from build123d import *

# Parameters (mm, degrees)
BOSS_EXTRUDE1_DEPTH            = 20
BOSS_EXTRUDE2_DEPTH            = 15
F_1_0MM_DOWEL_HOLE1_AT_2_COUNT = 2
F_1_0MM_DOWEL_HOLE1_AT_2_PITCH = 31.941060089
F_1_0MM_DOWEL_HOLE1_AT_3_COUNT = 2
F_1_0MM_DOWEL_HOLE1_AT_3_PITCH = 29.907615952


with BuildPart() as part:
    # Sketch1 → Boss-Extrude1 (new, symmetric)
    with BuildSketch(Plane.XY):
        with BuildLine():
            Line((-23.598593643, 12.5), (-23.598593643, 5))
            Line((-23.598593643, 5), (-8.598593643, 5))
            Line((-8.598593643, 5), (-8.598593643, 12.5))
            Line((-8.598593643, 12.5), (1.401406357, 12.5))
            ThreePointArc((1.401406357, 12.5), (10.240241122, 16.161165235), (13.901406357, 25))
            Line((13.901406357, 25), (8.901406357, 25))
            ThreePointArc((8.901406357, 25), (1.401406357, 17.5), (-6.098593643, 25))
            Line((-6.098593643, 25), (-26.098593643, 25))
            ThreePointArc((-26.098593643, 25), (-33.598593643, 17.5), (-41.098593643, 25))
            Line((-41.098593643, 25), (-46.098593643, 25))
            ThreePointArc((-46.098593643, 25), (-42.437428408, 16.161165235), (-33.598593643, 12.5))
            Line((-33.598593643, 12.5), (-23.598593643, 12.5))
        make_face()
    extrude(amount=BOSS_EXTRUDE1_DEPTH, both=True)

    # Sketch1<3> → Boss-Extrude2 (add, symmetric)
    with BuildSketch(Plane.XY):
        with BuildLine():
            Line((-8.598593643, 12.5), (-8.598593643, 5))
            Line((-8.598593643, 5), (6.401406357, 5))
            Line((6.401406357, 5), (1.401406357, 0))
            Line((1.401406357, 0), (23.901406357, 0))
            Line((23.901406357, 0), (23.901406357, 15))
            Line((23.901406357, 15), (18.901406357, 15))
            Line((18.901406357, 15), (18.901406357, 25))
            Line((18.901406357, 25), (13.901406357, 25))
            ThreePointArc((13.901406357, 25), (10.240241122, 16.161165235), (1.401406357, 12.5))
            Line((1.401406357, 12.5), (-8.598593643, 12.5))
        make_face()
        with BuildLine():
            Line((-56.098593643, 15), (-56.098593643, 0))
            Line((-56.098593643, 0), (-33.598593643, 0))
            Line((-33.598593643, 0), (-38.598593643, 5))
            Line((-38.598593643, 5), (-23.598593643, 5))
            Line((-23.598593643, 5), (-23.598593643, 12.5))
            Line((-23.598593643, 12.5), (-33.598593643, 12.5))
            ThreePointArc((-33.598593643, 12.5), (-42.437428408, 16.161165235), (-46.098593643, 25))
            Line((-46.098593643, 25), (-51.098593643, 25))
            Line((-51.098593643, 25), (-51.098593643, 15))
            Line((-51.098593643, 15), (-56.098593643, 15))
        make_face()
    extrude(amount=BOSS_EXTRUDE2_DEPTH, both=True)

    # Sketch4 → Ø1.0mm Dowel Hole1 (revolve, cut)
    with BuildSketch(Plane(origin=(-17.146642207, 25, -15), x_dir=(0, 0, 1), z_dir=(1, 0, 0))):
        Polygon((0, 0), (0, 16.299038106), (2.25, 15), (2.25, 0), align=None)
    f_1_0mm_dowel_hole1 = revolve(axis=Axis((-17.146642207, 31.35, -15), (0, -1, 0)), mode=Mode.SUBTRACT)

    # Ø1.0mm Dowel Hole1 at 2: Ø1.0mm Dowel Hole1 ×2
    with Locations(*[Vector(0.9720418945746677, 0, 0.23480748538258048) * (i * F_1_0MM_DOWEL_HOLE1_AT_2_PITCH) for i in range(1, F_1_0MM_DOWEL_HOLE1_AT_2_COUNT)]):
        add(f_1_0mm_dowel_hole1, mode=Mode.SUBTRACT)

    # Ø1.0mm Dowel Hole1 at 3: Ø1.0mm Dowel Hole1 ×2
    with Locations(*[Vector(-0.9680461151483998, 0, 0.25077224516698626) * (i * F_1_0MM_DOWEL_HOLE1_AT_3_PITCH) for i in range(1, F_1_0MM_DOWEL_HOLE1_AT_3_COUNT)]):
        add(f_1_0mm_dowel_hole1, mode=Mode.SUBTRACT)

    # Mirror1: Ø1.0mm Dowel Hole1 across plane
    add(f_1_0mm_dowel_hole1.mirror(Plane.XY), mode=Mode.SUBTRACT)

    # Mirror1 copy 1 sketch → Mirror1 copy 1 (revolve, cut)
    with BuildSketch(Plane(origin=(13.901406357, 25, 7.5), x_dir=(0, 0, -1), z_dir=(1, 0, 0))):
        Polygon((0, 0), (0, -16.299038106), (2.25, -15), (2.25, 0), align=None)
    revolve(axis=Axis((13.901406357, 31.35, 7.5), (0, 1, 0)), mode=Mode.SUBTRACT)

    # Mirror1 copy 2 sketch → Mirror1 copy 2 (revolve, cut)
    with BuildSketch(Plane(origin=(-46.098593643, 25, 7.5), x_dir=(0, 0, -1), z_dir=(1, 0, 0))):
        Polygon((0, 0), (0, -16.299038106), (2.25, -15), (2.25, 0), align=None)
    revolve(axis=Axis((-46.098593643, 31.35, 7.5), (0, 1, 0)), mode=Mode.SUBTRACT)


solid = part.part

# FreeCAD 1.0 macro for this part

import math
import FreeCAD as App
import Part
import Sketcher
from FreeCAD import Vector
Q = App.Units.Quantity


def add_polygon(sketch, points):
    """Adds a closed chain of lines whose ends are joined by coincident constraints."""
    first, n = sketch.GeometryCount, len(points)
    for a, b in zip(points, points[1:] + points[:1]):
        sketch.addGeometry(Part.LineSegment(App.Vector(*a, 0), App.Vector(*b, 0)), False)
    for i in range(n):
        sketch.addConstraint(Sketcher.Constraint("Coincident", first + i, 2, first + (i + 1) % n, 1))

doc = App.newDocument("Part")
params = doc.addObject("Spreadsheet::Sheet", "Params")
for row, (alias, value) in enumerate([
    ("sketch1_radius", "12.5 mm"),
    ("sketch1_radius2", "7.5 mm"),
    ("sketch1_width", "15 mm"),
    ("sketch1_width2", "10 mm"),
    ("sketch1_height", "7.5 mm"),
    ("pad1_length", "40 mm"),
    ("sketch2_radius", "12.5 mm"),
    ("sketch2_width", "15 mm"),
    ("sketch2_width2", "5 mm"),
    ("sketch2_width3", "10 mm"),
    ("pad2_length", "30 mm"),
    ("sketch3_width", "15 mm"),
    ("sketch3_height", "2.25 mm"),
    ("groove_angle", "360 deg"),
    ("linearpattern_pitch", "31.94106 mm"),
    ("linearpattern2_pitch", "29.907616 mm"),
    ("sketch4_width", "15 mm"),
    ("sketch4_height", "2.25 mm"),
    ("groove2_angle", "360 deg"),
    ("sketch5_width", "15 mm"),
    ("sketch5_height", "2.25 mm"),
    ("groove3_angle", "360 deg"),
], start=1):
    params.set(f"A{row}", alias)
    params.set(f"B{row}", "=" + value)
    params.setAlias(f"B{row}", alias)

body = doc.addObject("PartDesign::Body", "Body")

sketch1 = body.newObject("Sketcher::SketchObject", "Sketch")
sketch1.AttachmentSupport = (doc.getObject("XY_Plane"), [""])
sketch1.MapMode = "FlatFace"
sketch1.addGeometry([
    Part.LineSegment(Vector(-24, 12, 0), Vector(-24, 5, 0)),
    Part.LineSegment(Vector(-24, 5, 0), Vector(-9, 5, 0)),
    Part.LineSegment(Vector(-9, 5, 0), Vector(-9, 12, 0)),
    Part.LineSegment(Vector(-9, 12, 0), Vector(1, 12, 0)),
    Part.ArcOfCircle(Part.Circle(Vector(1, 25, 0), Vector(0, 0, 1), 12), math.radians(-90), math.radians(0)),
    Part.LineSegment(Vector(14, 25, 0), Vector(9, 25, 0)),
    Part.ArcOfCircle(Part.Circle(Vector(1, 25, 0), Vector(0, 0, 1), 8), math.radians(180), math.radians(360)),
    Part.LineSegment(Vector(-6, 25, 0), Vector(-26, 25, 0)),
    Part.ArcOfCircle(Part.Circle(Vector(-34, 25, 0), Vector(0, 0, 1), 8), math.radians(180), math.radians(360)),
    Part.LineSegment(Vector(-41, 25, 0), Vector(-46, 25, 0)),
    Part.ArcOfCircle(Part.Circle(Vector(-34, 25, 0), Vector(0, 0, 1), 12), math.radians(180), math.radians(270)),
    Part.LineSegment(Vector(-34, 12, 0), Vector(-24, 12, 0)),
], False)
sketch1.addConstraint([
    Sketcher.Constraint("Coincident", 0, 2, 1, 1),
    Sketcher.Constraint("Coincident", 1, 2, 2, 1),
    Sketcher.Constraint("Coincident", 2, 2, 3, 1),
    Sketcher.Constraint("Tangent", 3, 2, 4, 1),
    Sketcher.Constraint("Coincident", 4, 2, 5, 1),
    Sketcher.Constraint("Coincident", 5, 2, 6, 2),
    Sketcher.Constraint("Coincident", 6, 1, 7, 1),
    Sketcher.Constraint("Coincident", 7, 2, 8, 2),
    Sketcher.Constraint("Coincident", 8, 1, 9, 1),
    Sketcher.Constraint("Coincident", 9, 2, 10, 1),
    Sketcher.Constraint("Tangent", 10, 2, 11, 1),
    Sketcher.Constraint("Coincident", 11, 2, 0, 1),
    Sketcher.Constraint("Vertical", 0),
    Sketcher.Constraint("Horizontal", 1),
    Sketcher.Constraint("Vertical", 2),
    Sketcher.Constraint("Horizontal", 3),
    Sketcher.Constraint("Horizontal", 5),
    Sketcher.Constraint("Horizontal", 7),
    Sketcher.Constraint("Horizontal", 9),
    Sketcher.Constraint("Horizontal", 11),
    Sketcher.Constraint("Coincident", 6, 3, 4, 3),
    Sketcher.Constraint("Coincident", 10, 3, 8, 3),
    Sketcher.Constraint("Equal", 6, 8),
    Sketcher.Constraint("Equal", 4, 10),
    Sketcher.Constraint("Horizontal", 6, 3, 8, 3),
    Sketcher.Constraint("Horizontal", 10, 3, 4, 2),
    Sketcher.Constraint("Horizontal", 5, 2, 6, 1),
    Sketcher.Constraint("Horizontal", 7, 2, 8, 1),
    Sketcher.Constraint("Equal", 3, 11),
    Sketcher.Constraint("Radius", 4, Q("12.5 mm")),
    Sketcher.Constraint("Radius", 6, Q("7.5 mm")),
    Sketcher.Constraint("DistanceX", 1, 1, 1, 2, Q("15 mm")),
    Sketcher.Constraint("DistanceX", 3, 1, 3, 2, Q("10 mm")),
    Sketcher.Constraint("DistanceY", 0, 2, 0, 1, Q("7.5 mm")),
    Sketcher.Constraint("DistanceY", -1, 1, 4, 3, Q("25 mm")),
    Sketcher.Constraint("DistanceX", -1, 1, 4, 3, Q("1.401406 mm")),
])
sketch1.setExpression("Constraints[29]", "Params.sketch1_radius")
sketch1.setExpression("Constraints[30]", "Params.sketch1_radius2")
sketch1.setExpression("Constraints[31]", "Params.sketch1_width")
sketch1.setExpression("Constraints[32]", "Params.sketch1_width2")
sketch1.setExpression("Constraints[33]", "Params.sketch1_height")
pad1 = body.newObject("PartDesign::Pad", "Pad")
pad1.Profile = sketch1
pad1.setExpression("Length", "Params.pad1_length")
pad1.Midplane = True

sketch2 = body.newObject("Sketcher::SketchObject", "Sketch001")
sketch2.AttachmentSupport = (doc.getObject("XY_Plane"), [""])
sketch2.MapMode = "FlatFace"
sketch2.addGeometry([
    Part.LineSegment(Vector(-8.6, 12.5, 0), Vector(-8.6, 5, 0)),
    Part.LineSegment(Vector(-8.6, 5, 0), Vector(6.4, 5, 0)),
    Part.LineSegment(Vector(6.4, 5, 0), Vector(1.4, 0, 0)),
    Part.LineSegment(Vector(1.4, 0, 0), Vector(23.9, 0, 0)),
    Part.LineSegment(Vector(23.9, 0, 0), Vector(23.9, 15, 0)),
    Part.LineSegment(Vector(23.9, 15, 0), Vector(18.9, 15, 0)),
    Part.LineSegment(Vector(18.9, 15, 0), Vector(18.9, 25, 0)),
    Part.LineSegment(Vector(18.9, 25, 0), Vector(13.9, 25, 0)),
    Part.ArcOfCircle(Part.Circle(Vector(1.4, 25, 0), Vector(0, 0, 1), 12.5), math.radians(-90), math.radians(0)),
    Part.LineSegment(Vector(1.4, 12.5, 0), Vector(-8.6, 12.5, 0)),
    Part.LineSegment(Vector(-56.1, 15, 0), Vector(-56.1, 0, 0)),
    Part.LineSegment(Vector(-56.1, 0, 0), Vector(-33.6, 0, 0)),
    Part.LineSegment(Vector(-33.6, 0, 0), Vector(-38.6, 5, 0)),
    Part.LineSegment(Vector(-38.6, 5, 0), Vector(-23.6, 5, 0)),
    Part.LineSegment(Vector(-23.6, 5, 0), Vector(-23.6, 12.5, 0)),
    Part.LineSegment(Vector(-23.6, 12.5, 0), Vector(-33.6, 12.5, 0)),
    Part.ArcOfCircle(Part.Circle(Vector(-33.6, 25, 0), Vector(0, 0, 1), 12.5), math.radians(180), math.radians(270)),
    Part.LineSegment(Vector(-46.1, 25, 0), Vector(-51.1, 25, 0)),
    Part.LineSegment(Vector(-51.1, 25, 0), Vector(-51.1, 15, 0)),
    Part.LineSegment(Vector(-51.1, 15, 0), Vector(-56.1, 15, 0)),
], False)
sketch2.addConstraint([
    Sketcher.Constraint("Coincident", 0, 2, 1, 1),
    Sketcher.Constraint("Coincident", 1, 2, 2, 1),
    Sketcher.Constraint("Coincident", 2, 2, 3, 1),
    Sketcher.Constraint("Coincident", 3, 2, 4, 1),
    Sketcher.Constraint("Coincident", 4, 2, 5, 1),
    Sketcher.Constraint("Coincident", 5, 2, 6, 1),
    Sketcher.Constraint("Coincident", 6, 2, 7, 1),
    Sketcher.Constraint("Coincident", 7, 2, 8, 2),
    Sketcher.Constraint("Tangent", 8, 1, 9, 1),
    Sketcher.Constraint("Coincident", 9, 2, 0, 1),
    Sketcher.Constraint("Coincident", 10, 2, 11, 1),
    Sketcher.Constraint("Coincident", 11, 2, 12, 1),
    Sketcher.Constraint("Coincident", 12, 2, 13, 1),
    Sketcher.Constraint("Coincident", 13, 2, 14, 1),
    Sketcher.Constraint("Coincident", 14, 2, 15, 1),
    Sketcher.Constraint("Tangent", 15, 2, 16, 2),
    Sketcher.Constraint("Coincident", 16, 1, 17, 1),
    Sketcher.Constraint("Coincident", 17, 2, 18, 1),
    Sketcher.Constraint("Coincident", 18, 2, 19, 1),
    Sketcher.Constraint("Coincident", 19, 2, 10, 1),
    Sketcher.Constraint("Vertical", 0),
    Sketcher.Constraint("Horizontal", 1),
    Sketcher.Constraint("Horizontal", 3),
    Sketcher.Constraint("Vertical", 4),
    Sketcher.Constraint("Horizontal", 5),
    Sketcher.Constraint("Vertical", 6),
    Sketcher.Constraint("Horizontal", 7),
    Sketcher.Constraint("Horizontal", 9),
    Sketcher.Constraint("Vertical", 10),
    Sketcher.Constraint("Horizontal", 11),
    Sketcher.Constraint("Horizontal", 13),
    Sketcher.Constraint("Vertical", 14),
    Sketcher.Constraint("Horizontal", 15),
    Sketcher.Constraint("Horizontal", 17),
    Sketcher.Constraint("Vertical", 18),
    Sketcher.Constraint("Horizontal", 19),
    Sketcher.Constraint("Equal", 8, 16),
    Sketcher.Constraint("PointOnObject", 2, 2, -1),
    Sketcher.Constraint("PointOnObject", 10, 2, -1),
    Sketcher.Constraint("Perpendicular", 2, 12),
    Sketcher.Constraint("Horizontal", 8, 3, 16, 3),
    Sketcher.Constraint("Horizontal", 16, 3, 6, 2),
    Sketcher.Constraint("Horizontal", 1, 2, 12, 2),
    Sketcher.Constraint("Horizontal", 7, 2, 16, 1),
    Sketcher.Constraint("Horizontal", 5, 2, 18, 2),
    Sketcher.Constraint("Vertical", 8, 3, 2, 2),
    Sketcher.Constraint("Vertical", 16, 3, 11, 2),
    Sketcher.Constraint("Equal", 5, 7),
    Sketcher.Constraint("Equal", 3, 11),
    Sketcher.Constraint("Equal", 1, 13),
    Sketcher.Constraint("Equal", 9, 15),
    Sketcher.Constraint("Equal", 7, 17),
    Sketcher.Constraint("Equal", 13, 4),
    Sketcher.Constraint("Equal", 15, 6),
    Sketcher.Constraint("Radius", 8, Q("12.5 mm")),
    Sketcher.Constraint("DistanceX", 1, 1, 1, 2, Q("15 mm")),
    Sketcher.Constraint("DistanceX", 5, 2, 5, 1, Q("5 mm")),
    Sketcher.Constraint("DistanceX", 9, 2, 9, 1, Q("10 mm")),
    Sketcher.Constraint("DistanceX", 16, 3, 8, 3, Q("35 mm")),
    Sketcher.Constraint("DistanceX", -1, 1, 8, 3, Q("1.401406 mm")),
])
sketch2.setExpression("Constraints[54]", "Params.sketch2_radius")
sketch2.setExpression("Constraints[55]", "Params.sketch2_width")
sketch2.setExpression("Constraints[56]", "Params.sketch2_width2")
sketch2.setExpression("Constraints[57]", "Params.sketch2_width3")
pad2 = body.newObject("PartDesign::Pad", "Pad001")
pad2.Profile = sketch2
pad2.setExpression("Length", "Params.pad2_length")
pad2.Midplane = True

sketch3 = body.newObject("Sketcher::SketchObject", "Sketch002")
sketch3.AttachmentSupport = (doc.getObject("YZ_Plane"), [""])
sketch3.MapMode = "FlatFace"
sketch3.AttachmentOffset = App.Placement(Vector(0, 0, -17.146642), App.Rotation())
add_polygon(sketch3, [(8.7, -15), (25, -15), (25, -12.8), (10, -12.8)])
sketch3.addGeometry(Part.LineSegment(Vector(25, -15, 0), Vector(8.7, -15, 0)), True)
sketch3.addConstraint([
    Sketcher.Constraint("Horizontal", 0),
    Sketcher.Constraint("Vertical", 1),
    Sketcher.Constraint("Horizontal", 2),
    Sketcher.Constraint("Horizontal", 4),
    Sketcher.Constraint("Coincident", 4, 1, 0, 2),
    Sketcher.Constraint("Equal", 0, 4),
    Sketcher.Constraint("DistanceX", 2, 2, 2, 1, Q("15 mm")),
    Sketcher.Constraint("Angle", 3, Q("-120 deg")),
    Sketcher.Constraint("DistanceX", -1, 1, 0, 2, Q("25 mm")),
    Sketcher.Constraint("DistanceY", 0, 2, -1, 1, Q("15 mm")),
    Sketcher.Constraint("DistanceY", 1, 1, 1, 2, Q("2.25 mm")),
])
sketch3.setExpression("Constraints[10]", "Params.sketch3_width")
sketch3.setExpression("Constraints[14]", "Params.sketch3_height")
groove = body.newObject("PartDesign::Groove", "Groove")
groove.Profile = sketch3
groove.ReferenceAxis = (sketch3, ["Axis0"])
groove.setExpression("Angle", "Params.groove_angle")
doc.recompute()

datumline = body.newObject("PartDesign::Line", "DatumLine")
datumline.Placement = App.Placement(Vector(0, 0, 0), App.Rotation(Vector(0, 0, 1), Vector(0.972041895, 0, 0.234807485)))
linearpattern = body.newObject("PartDesign::LinearPattern", "LinearPattern")
linearpattern.Originals = [groove]
linearpattern.Direction = (datumline, [""])
linearpattern.Mode = "offset"
linearpattern.setExpression("Offset", "Params.linearpattern_pitch")
linearpattern.Occurrences = 2
body.Tip = linearpattern
doc.recompute()

datumline2 = body.newObject("PartDesign::Line", "DatumLine001")
datumline2.Placement = App.Placement(Vector(0, 0, 0), App.Rotation(Vector(0, 0, 1), Vector(-0.968046115, 0, 0.250772245)))
linearpattern2 = body.newObject("PartDesign::LinearPattern", "LinearPattern001")
linearpattern2.Originals = [groove]
linearpattern2.Direction = (datumline2, [""])
linearpattern2.Mode = "offset"
linearpattern2.setExpression("Offset", "Params.linearpattern2_pitch")
linearpattern2.Occurrences = 2
body.Tip = linearpattern2
doc.recompute()

mirrored = body.newObject("PartDesign::Mirrored", "Mirrored")
mirrored.Originals = [groove]
mirrored.MirrorPlane = (doc.getObject("XY_Plane"), [""])
body.Tip = mirrored

sketch4 = body.newObject("Sketcher::SketchObject", "Sketch003")
sketch4.AttachmentSupport = (doc.getObject("YZ_Plane"), [""])
sketch4.MapMode = "FlatFace"
sketch4.AttachmentOffset = App.Placement(Vector(0, 0, 13.901406), App.Rotation())
add_polygon(sketch4, [(25, 7.5), (8.7, 7.5), (10, 5.2), (25, 5.2)])
sketch4.addGeometry(Part.LineSegment(Vector(8.7, 7.5, 0), Vector(25, 7.5, 0)), True)
sketch4.addConstraint([
    Sketcher.Constraint("Horizontal", 0),
    Sketcher.Constraint("Horizontal", 2),
    Sketcher.Constraint("Vertical", 3),
    Sketcher.Constraint("Horizontal", 4),
    Sketcher.Constraint("Coincident", 4, 1, 0, 2),
    Sketcher.Constraint("Vertical", 2, 2, 4, 2),
    Sketcher.Constraint("DistanceX", 2, 1, 2, 2, Q("15 mm")),
    Sketcher.Constraint("Angle", 1, Q("-60 deg")),
    Sketcher.Constraint("DistanceX", -1, 1, 1, 2, Q("10 mm")),
    Sketcher.Constraint("DistanceY", 3, 1, 3, 2, Q("2.25 mm")),
    Sketcher.Constraint("DistanceY", -1, 1, 0, 2, Q("7.5 mm")),
])
sketch4.setExpression("Constraints[10]", "Params.sketch4_width")
sketch4.setExpression("Constraints[13]", "Params.sketch4_height")
groove2 = body.newObject("PartDesign::Groove", "Groove001")
groove2.Profile = sketch4
groove2.ReferenceAxis = (sketch4, ["Axis0"])
groove2.setExpression("Angle", "Params.groove2_angle")

sketch5 = body.newObject("Sketcher::SketchObject", "Sketch004")
sketch5.AttachmentSupport = (doc.getObject("YZ_Plane"), [""])
sketch5.MapMode = "FlatFace"
sketch5.AttachmentOffset = App.Placement(Vector(0, 0, -46.098594), App.Rotation())
add_polygon(sketch5, [(25, 7.5), (8.7, 7.5), (10, 5.2), (25, 5.2)])
sketch5.addGeometry(Part.LineSegment(Vector(8.7, 7.5, 0), Vector(25, 7.5, 0)), True)
sketch5.addConstraint([
    Sketcher.Constraint("Horizontal", 0),
    Sketcher.Constraint("Horizontal", 2),
    Sketcher.Constraint("Vertical", 3),
    Sketcher.Constraint("Horizontal", 4),
    Sketcher.Constraint("Coincident", 4, 1, 0, 2),
    Sketcher.Constraint("Vertical", 2, 2, 4, 2),
    Sketcher.Constraint("DistanceX", 2, 1, 2, 2, Q("15 mm")),
    Sketcher.Constraint("Angle", 1, Q("-60 deg")),
    Sketcher.Constraint("DistanceX", -1, 1, 1, 2, Q("10 mm")),
    Sketcher.Constraint("DistanceY", 3, 1, 3, 2, Q("2.25 mm")),
    Sketcher.Constraint("DistanceY", -1, 1, 0, 2, Q("7.5 mm")),
])
sketch5.setExpression("Constraints[10]", "Params.sketch5_width")
sketch5.setExpression("Constraints[13]", "Params.sketch5_height")
groove3 = body.newObject("PartDesign::Groove", "Groove002")
groove3.Profile = sketch5
groove3.ReferenceAxis = (sketch5, ["Axis0"])
groove3.setExpression("Angle", "Params.groove3_angle")

doc.recompute()
